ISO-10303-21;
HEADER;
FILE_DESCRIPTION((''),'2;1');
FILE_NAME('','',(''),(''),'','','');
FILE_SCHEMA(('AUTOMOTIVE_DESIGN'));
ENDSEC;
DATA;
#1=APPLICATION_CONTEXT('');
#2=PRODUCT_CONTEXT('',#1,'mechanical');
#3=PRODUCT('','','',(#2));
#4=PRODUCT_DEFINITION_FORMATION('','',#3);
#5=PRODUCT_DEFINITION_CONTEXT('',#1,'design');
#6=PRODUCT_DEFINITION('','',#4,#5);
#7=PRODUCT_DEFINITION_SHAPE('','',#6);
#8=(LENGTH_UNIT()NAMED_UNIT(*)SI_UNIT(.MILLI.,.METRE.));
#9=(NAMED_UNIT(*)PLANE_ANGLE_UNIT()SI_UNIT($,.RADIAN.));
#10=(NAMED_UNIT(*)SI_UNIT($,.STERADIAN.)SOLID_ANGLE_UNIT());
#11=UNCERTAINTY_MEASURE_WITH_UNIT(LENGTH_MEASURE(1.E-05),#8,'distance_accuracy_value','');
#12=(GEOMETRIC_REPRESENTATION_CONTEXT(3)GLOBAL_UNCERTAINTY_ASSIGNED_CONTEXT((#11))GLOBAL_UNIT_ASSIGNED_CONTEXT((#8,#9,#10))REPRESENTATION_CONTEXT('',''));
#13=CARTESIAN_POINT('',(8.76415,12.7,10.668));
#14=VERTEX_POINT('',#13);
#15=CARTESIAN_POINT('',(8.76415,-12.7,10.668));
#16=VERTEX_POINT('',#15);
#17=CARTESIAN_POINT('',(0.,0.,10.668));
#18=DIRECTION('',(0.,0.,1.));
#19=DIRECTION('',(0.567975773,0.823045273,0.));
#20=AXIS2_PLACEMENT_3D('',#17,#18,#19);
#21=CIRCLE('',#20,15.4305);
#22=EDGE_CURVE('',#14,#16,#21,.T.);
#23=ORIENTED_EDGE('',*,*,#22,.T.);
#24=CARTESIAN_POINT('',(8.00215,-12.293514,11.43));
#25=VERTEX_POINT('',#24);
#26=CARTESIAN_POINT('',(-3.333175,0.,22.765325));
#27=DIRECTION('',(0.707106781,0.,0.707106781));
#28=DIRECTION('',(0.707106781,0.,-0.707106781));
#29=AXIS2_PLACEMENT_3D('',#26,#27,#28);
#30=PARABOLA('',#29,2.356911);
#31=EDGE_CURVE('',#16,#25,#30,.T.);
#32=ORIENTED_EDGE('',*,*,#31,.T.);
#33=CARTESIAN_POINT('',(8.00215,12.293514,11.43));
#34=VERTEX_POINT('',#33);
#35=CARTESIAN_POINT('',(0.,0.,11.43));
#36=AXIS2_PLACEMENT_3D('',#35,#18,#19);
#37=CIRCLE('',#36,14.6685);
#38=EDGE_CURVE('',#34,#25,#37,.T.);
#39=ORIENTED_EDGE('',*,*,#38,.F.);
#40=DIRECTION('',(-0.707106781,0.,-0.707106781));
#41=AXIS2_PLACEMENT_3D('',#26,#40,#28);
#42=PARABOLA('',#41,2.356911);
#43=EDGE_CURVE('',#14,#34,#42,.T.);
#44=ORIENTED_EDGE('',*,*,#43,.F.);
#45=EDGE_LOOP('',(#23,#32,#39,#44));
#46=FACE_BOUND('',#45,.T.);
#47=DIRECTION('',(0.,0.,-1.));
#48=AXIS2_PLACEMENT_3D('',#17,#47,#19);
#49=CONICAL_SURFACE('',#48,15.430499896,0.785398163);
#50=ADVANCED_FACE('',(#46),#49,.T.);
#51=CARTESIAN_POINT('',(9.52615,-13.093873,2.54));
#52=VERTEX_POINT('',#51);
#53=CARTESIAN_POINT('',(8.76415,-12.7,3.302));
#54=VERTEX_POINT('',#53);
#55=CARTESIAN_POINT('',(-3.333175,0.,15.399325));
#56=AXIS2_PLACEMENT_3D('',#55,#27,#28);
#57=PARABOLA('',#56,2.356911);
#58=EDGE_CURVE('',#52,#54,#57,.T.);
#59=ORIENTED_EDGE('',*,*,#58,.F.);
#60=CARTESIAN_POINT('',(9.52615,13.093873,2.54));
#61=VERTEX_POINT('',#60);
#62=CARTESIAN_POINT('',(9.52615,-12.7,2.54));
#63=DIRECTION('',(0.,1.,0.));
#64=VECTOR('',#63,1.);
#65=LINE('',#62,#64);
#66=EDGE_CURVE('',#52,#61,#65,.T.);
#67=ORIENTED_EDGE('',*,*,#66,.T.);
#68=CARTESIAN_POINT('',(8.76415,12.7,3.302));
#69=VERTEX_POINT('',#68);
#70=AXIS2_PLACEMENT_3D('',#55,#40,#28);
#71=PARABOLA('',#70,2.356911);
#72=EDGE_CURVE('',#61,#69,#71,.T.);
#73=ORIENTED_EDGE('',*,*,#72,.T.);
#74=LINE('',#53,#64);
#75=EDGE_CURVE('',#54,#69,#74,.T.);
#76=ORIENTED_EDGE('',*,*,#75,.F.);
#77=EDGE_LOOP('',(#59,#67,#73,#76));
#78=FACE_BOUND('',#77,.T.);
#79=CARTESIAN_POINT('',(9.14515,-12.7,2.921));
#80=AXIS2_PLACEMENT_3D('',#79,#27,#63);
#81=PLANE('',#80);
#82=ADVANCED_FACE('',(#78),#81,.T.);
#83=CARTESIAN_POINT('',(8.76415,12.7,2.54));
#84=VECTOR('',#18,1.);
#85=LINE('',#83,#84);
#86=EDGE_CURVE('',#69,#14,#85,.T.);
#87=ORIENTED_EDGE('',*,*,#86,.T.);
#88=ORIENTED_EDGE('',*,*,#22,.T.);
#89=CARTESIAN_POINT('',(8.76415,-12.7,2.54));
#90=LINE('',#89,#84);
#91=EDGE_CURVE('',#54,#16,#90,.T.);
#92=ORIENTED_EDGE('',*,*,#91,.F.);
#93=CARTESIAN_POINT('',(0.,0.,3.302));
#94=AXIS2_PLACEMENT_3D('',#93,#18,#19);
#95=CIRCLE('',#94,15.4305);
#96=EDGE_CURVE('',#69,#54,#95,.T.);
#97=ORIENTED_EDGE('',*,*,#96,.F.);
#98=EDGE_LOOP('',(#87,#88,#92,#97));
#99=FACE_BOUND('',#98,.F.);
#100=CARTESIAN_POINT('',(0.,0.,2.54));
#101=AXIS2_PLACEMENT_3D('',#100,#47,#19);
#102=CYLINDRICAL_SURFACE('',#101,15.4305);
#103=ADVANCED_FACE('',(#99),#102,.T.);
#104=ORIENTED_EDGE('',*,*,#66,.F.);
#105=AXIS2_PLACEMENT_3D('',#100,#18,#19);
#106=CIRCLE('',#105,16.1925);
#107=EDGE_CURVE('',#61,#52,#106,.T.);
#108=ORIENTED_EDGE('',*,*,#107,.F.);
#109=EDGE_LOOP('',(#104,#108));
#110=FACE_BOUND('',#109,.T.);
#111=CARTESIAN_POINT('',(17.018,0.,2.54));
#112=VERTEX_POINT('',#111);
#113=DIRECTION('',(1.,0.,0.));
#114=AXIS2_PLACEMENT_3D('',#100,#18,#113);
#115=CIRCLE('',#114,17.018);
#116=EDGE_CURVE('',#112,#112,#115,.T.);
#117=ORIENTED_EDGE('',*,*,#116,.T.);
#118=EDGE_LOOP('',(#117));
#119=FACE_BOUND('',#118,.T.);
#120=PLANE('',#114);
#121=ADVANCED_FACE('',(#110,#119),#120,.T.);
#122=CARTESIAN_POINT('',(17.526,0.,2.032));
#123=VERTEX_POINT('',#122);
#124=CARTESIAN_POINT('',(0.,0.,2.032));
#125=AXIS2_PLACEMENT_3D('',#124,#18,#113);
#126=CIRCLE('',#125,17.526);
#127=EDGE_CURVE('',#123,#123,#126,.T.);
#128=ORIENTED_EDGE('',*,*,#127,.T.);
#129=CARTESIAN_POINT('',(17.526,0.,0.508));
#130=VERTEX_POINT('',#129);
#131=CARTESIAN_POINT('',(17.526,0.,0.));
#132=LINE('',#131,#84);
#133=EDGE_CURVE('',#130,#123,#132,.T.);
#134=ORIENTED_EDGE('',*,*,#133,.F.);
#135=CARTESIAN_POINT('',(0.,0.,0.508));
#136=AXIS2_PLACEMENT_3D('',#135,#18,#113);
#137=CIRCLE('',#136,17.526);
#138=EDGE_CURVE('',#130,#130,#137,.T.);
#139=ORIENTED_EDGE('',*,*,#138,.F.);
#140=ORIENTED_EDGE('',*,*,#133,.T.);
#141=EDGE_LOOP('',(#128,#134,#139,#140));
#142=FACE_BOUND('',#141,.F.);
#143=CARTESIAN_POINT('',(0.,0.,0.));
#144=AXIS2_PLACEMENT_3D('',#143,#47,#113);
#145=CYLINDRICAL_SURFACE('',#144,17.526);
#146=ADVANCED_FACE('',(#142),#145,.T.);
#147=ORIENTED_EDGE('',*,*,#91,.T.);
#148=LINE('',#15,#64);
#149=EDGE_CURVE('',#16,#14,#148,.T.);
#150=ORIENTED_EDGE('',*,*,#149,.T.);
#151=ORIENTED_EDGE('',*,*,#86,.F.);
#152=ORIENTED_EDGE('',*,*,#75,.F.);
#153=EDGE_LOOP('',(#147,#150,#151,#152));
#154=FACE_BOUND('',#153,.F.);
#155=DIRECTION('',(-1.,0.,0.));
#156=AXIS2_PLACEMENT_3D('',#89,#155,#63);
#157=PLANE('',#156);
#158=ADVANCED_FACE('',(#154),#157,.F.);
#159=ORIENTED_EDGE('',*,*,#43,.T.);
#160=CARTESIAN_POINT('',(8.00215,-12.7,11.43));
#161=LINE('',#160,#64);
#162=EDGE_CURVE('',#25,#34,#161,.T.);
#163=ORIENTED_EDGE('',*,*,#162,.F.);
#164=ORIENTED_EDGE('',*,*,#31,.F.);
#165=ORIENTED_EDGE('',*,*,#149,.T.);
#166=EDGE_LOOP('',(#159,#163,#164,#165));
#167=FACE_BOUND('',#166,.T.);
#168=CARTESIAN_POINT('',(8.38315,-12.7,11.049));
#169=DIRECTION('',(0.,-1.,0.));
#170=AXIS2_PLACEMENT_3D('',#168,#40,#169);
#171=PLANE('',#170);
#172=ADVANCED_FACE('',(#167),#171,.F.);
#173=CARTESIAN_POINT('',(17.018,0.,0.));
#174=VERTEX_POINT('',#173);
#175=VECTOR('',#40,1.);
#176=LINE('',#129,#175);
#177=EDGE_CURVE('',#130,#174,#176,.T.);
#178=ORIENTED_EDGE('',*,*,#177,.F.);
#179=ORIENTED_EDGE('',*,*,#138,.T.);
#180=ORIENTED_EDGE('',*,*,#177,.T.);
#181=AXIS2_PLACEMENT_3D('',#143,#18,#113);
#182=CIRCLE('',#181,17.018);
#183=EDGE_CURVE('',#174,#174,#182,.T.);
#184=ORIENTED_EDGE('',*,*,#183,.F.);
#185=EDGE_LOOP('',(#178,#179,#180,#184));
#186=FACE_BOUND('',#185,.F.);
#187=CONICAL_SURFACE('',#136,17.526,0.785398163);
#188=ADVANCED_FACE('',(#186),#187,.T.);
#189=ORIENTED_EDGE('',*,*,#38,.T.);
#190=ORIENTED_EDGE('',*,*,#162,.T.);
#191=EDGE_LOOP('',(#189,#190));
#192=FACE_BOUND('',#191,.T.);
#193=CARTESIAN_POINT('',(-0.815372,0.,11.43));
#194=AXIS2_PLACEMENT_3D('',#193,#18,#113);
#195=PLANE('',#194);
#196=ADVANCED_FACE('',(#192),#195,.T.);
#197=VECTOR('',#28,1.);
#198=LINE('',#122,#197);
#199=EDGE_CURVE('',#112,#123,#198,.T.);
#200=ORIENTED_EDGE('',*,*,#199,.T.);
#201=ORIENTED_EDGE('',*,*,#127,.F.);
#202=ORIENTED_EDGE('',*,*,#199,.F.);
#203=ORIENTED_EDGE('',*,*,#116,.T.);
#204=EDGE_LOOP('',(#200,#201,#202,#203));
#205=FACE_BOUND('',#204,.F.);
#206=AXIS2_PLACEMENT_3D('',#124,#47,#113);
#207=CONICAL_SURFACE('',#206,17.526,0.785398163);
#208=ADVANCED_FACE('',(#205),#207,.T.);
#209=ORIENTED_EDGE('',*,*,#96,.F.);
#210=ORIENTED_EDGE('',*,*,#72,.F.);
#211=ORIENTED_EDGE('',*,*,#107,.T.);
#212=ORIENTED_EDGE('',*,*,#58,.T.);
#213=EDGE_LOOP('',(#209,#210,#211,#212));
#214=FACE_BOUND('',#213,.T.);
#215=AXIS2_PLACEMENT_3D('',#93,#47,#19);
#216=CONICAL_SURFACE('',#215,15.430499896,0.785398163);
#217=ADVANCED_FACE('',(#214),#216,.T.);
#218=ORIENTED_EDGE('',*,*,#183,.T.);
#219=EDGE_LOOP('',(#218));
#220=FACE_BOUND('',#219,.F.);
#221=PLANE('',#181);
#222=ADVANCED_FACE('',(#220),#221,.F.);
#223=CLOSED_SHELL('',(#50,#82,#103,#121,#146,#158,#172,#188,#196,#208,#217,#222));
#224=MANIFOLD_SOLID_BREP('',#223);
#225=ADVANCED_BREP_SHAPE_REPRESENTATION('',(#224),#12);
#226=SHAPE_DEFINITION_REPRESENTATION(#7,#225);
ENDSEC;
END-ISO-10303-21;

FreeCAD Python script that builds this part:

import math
import FreeCAD as App
import Part
import Sketcher

V = App.Vector
Q = App.Units.Quantity


def edges_at(feature, points):
    """Names of the edges that pass closest to the given points."""
    edges = feature.Shape.Edges
    near = lambda p: min(range(len(edges)), key=lambda i: edges[i].distToShape(Part.Vertex(*p))[0])
    return sorted({f"Edge{near(p) + 1}" for p in points})

doc = App.newDocument("Part")
params = doc.addObject("Spreadsheet::Sheet", "Params")
for row, (alias, value) in enumerate([
    ("sketch1_diameter", "1.38 in"),
    ("pad1_length", "0.1 in"),
    ("sketch2_height", "1 in"),
    ("pad2_length", "0.35 in"),
    ("chamfer_size", "0.03 in"),
    ("chamfer2_size", "0.02 in"),
], start=1):
    params.set(f"A{row}", alias)
    params.set(f"B{row}", "=" + value)
    params.setAlias(f"B{row}", alias)

body = doc.addObject("PartDesign::Body", "Body")

sketch1 = body.newObject("Sketcher::SketchObject", "Sketch")
sketch1.AttachmentSupport = (doc.getObject("XY_Plane"), [""])
sketch1.MapMode = "FlatFace"
sketch1.addGeometry(Part.Circle(V(0, 0, 0), V(0, 0, 1), 17.526), False)
sketch1.addConstraint(Sketcher.Constraint("Coincident", 0, 3, -1, 1))
sketch1.addConstraint(Sketcher.Constraint("Diameter", 0, Q("1.38 in")))
sketch1.setExpression("Constraints[1]", "Params.sketch1_diameter")
pad1 = body.newObject("PartDesign::Pad", "Pad")
pad1.Profile = sketch1
pad1.setExpression("Length", "Params.pad1_length")

sketch2 = body.newObject("Sketcher::SketchObject", "Sketch001")
sketch2.AttachmentSupport = (doc.getObject("XY_Plane"), [""])
sketch2.MapMode = "FlatFace"
sketch2.AttachmentOffset = App.Placement(V(0, 0, 0.1 * 25.4), App.Rotation())
sketch2.addGeometry(Part.LineSegment(V(8.76415, -12.7, 0), V(8.76415, 12.7, 0)), False)
sketch2.addGeometry(Part.ArcOfCircle(Part.Circle(V(0, 0, 0), V(0, 0, 1), 15.4305), math.radians(55.390809), math.radians(304.609191)), False)
sketch2.addConstraint(Sketcher.Constraint("Coincident", 0, 1, 1, 2))
sketch2.addConstraint(Sketcher.Constraint("Coincident", 1, 1, 0, 2))
sketch2.addConstraint(Sketcher.Constraint("Vertical", 0))
sketch2.addConstraint(Sketcher.Constraint("Coincident", 1, 3, -1, 1))
sketch2.addConstraint(Sketcher.Constraint("DistanceY", 0, 1, 0, 2, Q("1 in")))
sketch2.addConstraint(Sketcher.Constraint("Radius", 1, Q("0.6075 in")))
sketch2.setExpression("Constraints[4]", "Params.sketch2_height")
pad2 = body.newObject("PartDesign::Pad", "Pad001")
pad2.Profile = sketch2
pad2.setExpression("Length", "Params.pad2_length")
doc.recompute()

chamfer = body.newObject("PartDesign::Chamfer", "Chamfer")
chamfer.Base = (pad2, edges_at(pad2, [
    (-15.431, 0, 11.43),
    (8.764, 0, 11.43),
    (8.764, 0, 2.54),
    (-15.431, 0, 2.54),
]))
chamfer.setExpression("Size", "Params.chamfer_size")
doc.recompute()

chamfer2 = body.newObject("PartDesign::Chamfer", "Chamfer001")
chamfer2.Base = (chamfer, edges_at(chamfer, [(-17.526, 0, 2.54), (-17.526, 0, 0)]))
chamfer2.setExpression("Size", "Params.chamfer2_size")

doc.recompute()
